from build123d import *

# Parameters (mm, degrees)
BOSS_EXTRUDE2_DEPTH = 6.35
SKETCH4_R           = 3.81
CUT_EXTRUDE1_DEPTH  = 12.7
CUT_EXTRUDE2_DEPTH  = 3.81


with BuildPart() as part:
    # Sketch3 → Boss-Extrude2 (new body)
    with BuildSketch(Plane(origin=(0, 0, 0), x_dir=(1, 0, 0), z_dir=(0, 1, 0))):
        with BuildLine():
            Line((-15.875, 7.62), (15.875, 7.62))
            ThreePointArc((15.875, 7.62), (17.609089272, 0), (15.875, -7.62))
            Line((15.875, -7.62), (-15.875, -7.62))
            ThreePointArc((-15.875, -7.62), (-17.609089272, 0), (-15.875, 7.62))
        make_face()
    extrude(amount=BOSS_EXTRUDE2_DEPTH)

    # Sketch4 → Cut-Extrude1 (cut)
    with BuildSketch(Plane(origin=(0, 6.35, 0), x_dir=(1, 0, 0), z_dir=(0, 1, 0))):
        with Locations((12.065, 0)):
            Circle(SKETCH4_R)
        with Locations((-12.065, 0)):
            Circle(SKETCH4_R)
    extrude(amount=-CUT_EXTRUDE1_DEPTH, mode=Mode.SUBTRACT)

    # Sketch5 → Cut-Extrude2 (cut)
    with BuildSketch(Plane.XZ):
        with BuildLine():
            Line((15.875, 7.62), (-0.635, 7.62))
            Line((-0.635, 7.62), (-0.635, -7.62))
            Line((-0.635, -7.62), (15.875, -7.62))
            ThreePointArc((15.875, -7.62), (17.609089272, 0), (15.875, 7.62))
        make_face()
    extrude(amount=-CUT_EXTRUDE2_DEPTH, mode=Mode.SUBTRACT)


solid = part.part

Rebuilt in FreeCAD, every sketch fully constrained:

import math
import FreeCAD as App
import Part
import Sketcher
Q = App.Units.Quantity

doc = App.newDocument("Part")
body = doc.addObject("PartDesign::Body", "Body")

sketch1 = body.newObject("Sketcher::SketchObject", "Sketch")
sketch1.AttachmentSupport = (doc.getObject("XZ_Plane"), [""])
sketch1.MapMode = "FlatFace"
sketch1.addGeometry([
    Part.LineSegment(App.Vector(16, -8, 0), App.Vector(-16, -8, 0)),
    Part.ArcOfCircle(Part.Circle(App.Vector(0, 0, 0), App.Vector(0, 0, 1), 18), math.radians(154), math.radians(206)),
    Part.LineSegment(App.Vector(-16, 8, 0), App.Vector(16, 8, 0)),
    Part.ArcOfCircle(Part.Circle(App.Vector(0, 0, 0), App.Vector(0, 0, 1), 18), math.radians(-26), math.radians(26)),
], False)
sketch1.addConstraint([
    Sketcher.Constraint("Coincident", 0, 2, 1, 2),
    Sketcher.Constraint("Coincident", 1, 1, 2, 1),
    Sketcher.Constraint("Coincident", 2, 2, 3, 2),
    Sketcher.Constraint("Coincident", 3, 1, 0, 1),
    Sketcher.Constraint("Horizontal", 0),
    Sketcher.Constraint("Horizontal", 2),
    Sketcher.Constraint("Coincident", 1, 3, -1, 1),
    Sketcher.Constraint("Coincident", 3, 3, -1, 1),
    Sketcher.Constraint("Equal", 1, 3),
    Sketcher.Constraint("Vertical", 0, 2, 1, 1),
    Sketcher.Constraint("DistanceX", 0, 2, 0, 1, Q("1.25 in")),
    Sketcher.Constraint("DistanceY", 0, 2, -1, 1, Q("0.3 in")),
])
pad1 = body.newObject("PartDesign::Pad", "Pad")
pad1.Profile = sketch1
pad1.Length = Q("0.25 in")
pad1.Reversed = True

sketch2 = body.newObject("Sketcher::SketchObject", "Sketch001")
sketch2.AttachmentSupport = (doc.getObject("XZ_Plane"), [""])
sketch2.MapMode = "FlatFace"
sketch2.AttachmentOffset = App.Placement(App.Vector(0, 0, -0.25 * 25.4), App.Rotation())
sketch2.addGeometry([
    Part.Circle(App.Vector(12.1, 0, 0), App.Vector(0, 0, 1), 3.8),
    Part.Circle(App.Vector(-12.1, 0, 0), App.Vector(0, 0, 1), 3.8),
], False)
sketch2.addConstraint([
    Sketcher.Constraint("Equal", 0, 1),
    Sketcher.Constraint("Symmetric", 0, 3, 1, 3, -1, 1),
    Sketcher.Constraint("PointOnObject", 0, 3, -1),
    Sketcher.Constraint("Diameter", 0, Q("0.3 in")),
    Sketcher.Constraint("DistanceX", 1, 3, 0, 3, Q("0.95 in")),
])
pocket1 = body.newObject("PartDesign::Pocket", "Pocket")
pocket1.Profile = sketch2
pocket1.Length = Q("0.5 in")
pocket1.Reversed = True

sketch3 = body.newObject("Sketcher::SketchObject", "Sketch002")
sketch3.AttachmentSupport = (doc.getObject("XZ_Plane"), [""])
sketch3.MapMode = "FlatFace"
sketch3.addGeometry([
    Part.LineSegment(App.Vector(16, 8, 0), App.Vector(-1, 8, 0)),
    Part.LineSegment(App.Vector(-1, 8, 0), App.Vector(-1, -8, 0)),
    Part.LineSegment(App.Vector(-1, -8, 0), App.Vector(16, -8, 0)),
    Part.ArcOfCircle(Part.Circle(App.Vector(0, 0, 0), App.Vector(0, 0, 1), 18), math.radians(-26), math.radians(26)),
], False)
sketch3.addConstraint([
    Sketcher.Constraint("Coincident", 0, 2, 1, 1),
    Sketcher.Constraint("Coincident", 1, 2, 2, 1),
    Sketcher.Constraint("Coincident", 2, 2, 3, 1),
    Sketcher.Constraint("Coincident", 3, 2, 0, 1),
    Sketcher.Constraint("Horizontal", 0),
    Sketcher.Constraint("Vertical", 1),
    Sketcher.Constraint("Horizontal", 2),
    Sketcher.Constraint("Coincident", 3, 3, -1, 1),
    Sketcher.Constraint("Vertical", 2, 2, 3, 2),
    Sketcher.Constraint("DistanceY", 1, 2, 1, 1, Q("0.6 in")),
    Sketcher.Constraint("DistanceX", 0, 2, 0, 1, Q("0.65 in")),
    Sketcher.Constraint("DistanceX", 0, 2, -1, 1, Q("0.025 in")),
])
pocket2 = body.newObject("PartDesign::Pocket", "Pocket001")
pocket2.Profile = sketch3
pocket2.Length = Q("0.15 in")

doc.recompute()
